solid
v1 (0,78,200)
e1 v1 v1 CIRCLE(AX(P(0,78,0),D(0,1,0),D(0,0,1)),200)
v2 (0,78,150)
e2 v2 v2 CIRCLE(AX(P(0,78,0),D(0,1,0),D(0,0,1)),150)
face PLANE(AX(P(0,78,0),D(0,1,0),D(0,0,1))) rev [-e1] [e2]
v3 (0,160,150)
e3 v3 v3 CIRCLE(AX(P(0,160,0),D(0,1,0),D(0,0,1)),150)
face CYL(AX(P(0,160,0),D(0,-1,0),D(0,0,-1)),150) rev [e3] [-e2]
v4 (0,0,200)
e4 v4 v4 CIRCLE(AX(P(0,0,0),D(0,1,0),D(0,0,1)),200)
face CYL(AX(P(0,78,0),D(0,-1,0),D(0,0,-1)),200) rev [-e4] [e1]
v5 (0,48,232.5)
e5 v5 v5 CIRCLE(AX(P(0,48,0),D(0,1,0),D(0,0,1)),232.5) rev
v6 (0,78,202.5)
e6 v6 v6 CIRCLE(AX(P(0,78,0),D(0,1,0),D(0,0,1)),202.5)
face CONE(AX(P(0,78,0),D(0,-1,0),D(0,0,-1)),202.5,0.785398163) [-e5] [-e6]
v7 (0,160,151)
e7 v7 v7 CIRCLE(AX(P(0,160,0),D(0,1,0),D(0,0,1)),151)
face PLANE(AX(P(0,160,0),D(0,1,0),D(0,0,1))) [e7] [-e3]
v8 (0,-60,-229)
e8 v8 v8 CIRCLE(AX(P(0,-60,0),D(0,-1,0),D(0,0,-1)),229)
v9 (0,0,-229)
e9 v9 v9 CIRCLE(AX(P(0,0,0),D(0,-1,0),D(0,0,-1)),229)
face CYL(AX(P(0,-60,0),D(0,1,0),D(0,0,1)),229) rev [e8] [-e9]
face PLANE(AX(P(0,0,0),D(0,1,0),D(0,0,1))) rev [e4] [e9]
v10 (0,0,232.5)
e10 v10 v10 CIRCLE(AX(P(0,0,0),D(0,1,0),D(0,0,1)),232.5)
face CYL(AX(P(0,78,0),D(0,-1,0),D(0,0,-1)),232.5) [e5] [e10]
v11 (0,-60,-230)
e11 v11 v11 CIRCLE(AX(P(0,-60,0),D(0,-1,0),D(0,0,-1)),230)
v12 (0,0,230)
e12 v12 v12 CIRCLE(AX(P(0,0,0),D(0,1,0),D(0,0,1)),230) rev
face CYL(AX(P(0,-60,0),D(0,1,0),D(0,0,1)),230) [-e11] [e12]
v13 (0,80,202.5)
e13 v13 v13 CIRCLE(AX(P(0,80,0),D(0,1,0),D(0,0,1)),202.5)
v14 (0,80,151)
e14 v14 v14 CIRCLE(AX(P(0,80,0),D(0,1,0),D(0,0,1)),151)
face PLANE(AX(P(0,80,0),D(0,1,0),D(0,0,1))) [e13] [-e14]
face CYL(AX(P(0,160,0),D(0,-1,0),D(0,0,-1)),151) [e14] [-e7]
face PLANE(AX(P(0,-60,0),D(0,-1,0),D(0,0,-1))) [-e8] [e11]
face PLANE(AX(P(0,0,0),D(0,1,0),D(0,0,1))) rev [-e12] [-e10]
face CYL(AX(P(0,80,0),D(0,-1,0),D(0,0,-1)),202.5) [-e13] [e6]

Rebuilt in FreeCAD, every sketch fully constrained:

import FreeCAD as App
import Part
import Sketcher
from FreeCAD import Vector
Q = App.Units.Quantity


def edges_at(feature, points):
    """Names of the edges that pass closest to the given points."""
    edges = feature.Shape.Edges
    near = lambda p: min(range(len(edges)), key=lambda i: edges[i].distToShape(Part.Vertex(*p))[0])
    return sorted({f"Edge{near(p) + 1}" for p in points})

doc = App.newDocument("Part")
body = doc.addObject("PartDesign::Body", "Body")

sketch1 = body.newObject("Sketcher::SketchObject", "Sketch")
sketch1.AttachmentSupport = (doc.getObject("XZ_Plane"), [""])
sketch1.MapMode = "FlatFace"
sketch1.addGeometry([
    Part.Circle(Vector(0, 0, 0), Vector(0, 0, 1), 232),
    Part.Circle(Vector(0, 0, 0), Vector(0, 0, 1), 200),
], False)
sketch1.addConstraint([
    Sketcher.Constraint("Coincident", 0, 3, -1, 1),
    Sketcher.Constraint("Coincident", 1, 3, -1, 1),
    Sketcher.Constraint("Diameter", 0, Q("465 mm")),
    Sketcher.Constraint("Diameter", 1, Q("400 mm")),
])
pad1 = body.newObject("PartDesign::Pad", "Pad")
pad1.Profile = sketch1
pad1.Length = 78
pad1.Reversed = True
doc.recompute()

chamfer = body.newObject("PartDesign::Chamfer", "Chamfer")
chamfer.Base = (pad1, edges_at(pad1, [(0, 78, -232.5)]))
chamfer.Size = 30
body2 = doc.addObject("PartDesign::Body", "Body001")

sketch2 = body2.newObject("Sketcher::SketchObject", "Sketch001")
sketch2.AttachmentSupport = (doc.getObject("XZ_Plane001"), [""])
sketch2.MapMode = "FlatFace"
sketch2.AttachmentOffset = App.Placement(Vector(0, 0, -78), App.Rotation())
sketch2.addGeometry([
    Part.Circle(Vector(0, 0, 0), Vector(0, 0, 1), 151),
    Part.Circle(Vector(0, 0, 0), Vector(0, 0, 1), 150),
], False)
sketch2.addConstraint([
    Sketcher.Constraint("Coincident", 0, 3, -1, 1),
    Sketcher.Constraint("Coincident", 1, 3, -1, 1),
    Sketcher.Constraint("Diameter", 0, Q("302 mm")),
    Sketcher.Constraint("Diameter", 1, Q("300 mm")),
])
pad2 = body2.newObject("PartDesign::Pad", "Pad001")
pad2.Profile = sketch2
pad2.Length = 82
pad2.Reversed = True
body.AllowCompound = True
doc.recompute()

boolean = body.newObject("PartDesign::Boolean", "Boolean")
boolean.Type = "Fuse"
boolean.addObjects([body2])

sketch3 = body.newObject("Sketcher::SketchObject", "Sketch002")
sketch3.AttachmentSupport = (doc.getObject("XZ_Plane"), [""])
sketch3.MapMode = "FlatFace"
sketch3.AttachmentOffset = App.Placement(Vector(0, 0, -78), App.Rotation())
sketch3.addGeometry([
    Part.Circle(Vector(0, 0, 0), Vector(0, 0, 1), 202),
    Part.Circle(Vector(0, 0, 0), Vector(0, 0, 1), 150),
], False)
sketch3.addConstraint([
    Sketcher.Constraint("Coincident", 0, 3, -1, 1),
    Sketcher.Constraint("Coincident", 1, 3, -1, 1),
    Sketcher.Constraint("Diameter", 0, Q("405 mm")),
    Sketcher.Constraint("Diameter", 1, Q("300 mm")),
])
pad3 = body.newObject("PartDesign::Pad", "Pad002")
pad3.Profile = sketch3
pad3.Length = 2
pad3.Reversed = True

sketch4 = body.newObject("Sketcher::SketchObject", "Sketch003")
sketch4.AttachmentSupport = (doc.getObject("XZ_Plane"), [""])
sketch4.MapMode = "FlatFace"
sketch4.addGeometry([
    Part.Circle(Vector(0, 0, 0), Vector(0, 0, 1), 230),
    Part.Circle(Vector(0, 0, 0), Vector(0, 0, 1), 229),
], False)
sketch4.addConstraint([
    Sketcher.Constraint("Coincident", 0, 3, -1, 1),
    Sketcher.Constraint("Coincident", 1, 3, -1, 1),
    Sketcher.Constraint("Diameter", 0, Q("460 mm")),
    Sketcher.Constraint("Diameter", 1, Q("458 mm")),
])
pad4 = body.newObject("PartDesign::Pad", "Pad003")
pad4.Profile = sketch4
pad4.Length = 60

doc.recompute()
